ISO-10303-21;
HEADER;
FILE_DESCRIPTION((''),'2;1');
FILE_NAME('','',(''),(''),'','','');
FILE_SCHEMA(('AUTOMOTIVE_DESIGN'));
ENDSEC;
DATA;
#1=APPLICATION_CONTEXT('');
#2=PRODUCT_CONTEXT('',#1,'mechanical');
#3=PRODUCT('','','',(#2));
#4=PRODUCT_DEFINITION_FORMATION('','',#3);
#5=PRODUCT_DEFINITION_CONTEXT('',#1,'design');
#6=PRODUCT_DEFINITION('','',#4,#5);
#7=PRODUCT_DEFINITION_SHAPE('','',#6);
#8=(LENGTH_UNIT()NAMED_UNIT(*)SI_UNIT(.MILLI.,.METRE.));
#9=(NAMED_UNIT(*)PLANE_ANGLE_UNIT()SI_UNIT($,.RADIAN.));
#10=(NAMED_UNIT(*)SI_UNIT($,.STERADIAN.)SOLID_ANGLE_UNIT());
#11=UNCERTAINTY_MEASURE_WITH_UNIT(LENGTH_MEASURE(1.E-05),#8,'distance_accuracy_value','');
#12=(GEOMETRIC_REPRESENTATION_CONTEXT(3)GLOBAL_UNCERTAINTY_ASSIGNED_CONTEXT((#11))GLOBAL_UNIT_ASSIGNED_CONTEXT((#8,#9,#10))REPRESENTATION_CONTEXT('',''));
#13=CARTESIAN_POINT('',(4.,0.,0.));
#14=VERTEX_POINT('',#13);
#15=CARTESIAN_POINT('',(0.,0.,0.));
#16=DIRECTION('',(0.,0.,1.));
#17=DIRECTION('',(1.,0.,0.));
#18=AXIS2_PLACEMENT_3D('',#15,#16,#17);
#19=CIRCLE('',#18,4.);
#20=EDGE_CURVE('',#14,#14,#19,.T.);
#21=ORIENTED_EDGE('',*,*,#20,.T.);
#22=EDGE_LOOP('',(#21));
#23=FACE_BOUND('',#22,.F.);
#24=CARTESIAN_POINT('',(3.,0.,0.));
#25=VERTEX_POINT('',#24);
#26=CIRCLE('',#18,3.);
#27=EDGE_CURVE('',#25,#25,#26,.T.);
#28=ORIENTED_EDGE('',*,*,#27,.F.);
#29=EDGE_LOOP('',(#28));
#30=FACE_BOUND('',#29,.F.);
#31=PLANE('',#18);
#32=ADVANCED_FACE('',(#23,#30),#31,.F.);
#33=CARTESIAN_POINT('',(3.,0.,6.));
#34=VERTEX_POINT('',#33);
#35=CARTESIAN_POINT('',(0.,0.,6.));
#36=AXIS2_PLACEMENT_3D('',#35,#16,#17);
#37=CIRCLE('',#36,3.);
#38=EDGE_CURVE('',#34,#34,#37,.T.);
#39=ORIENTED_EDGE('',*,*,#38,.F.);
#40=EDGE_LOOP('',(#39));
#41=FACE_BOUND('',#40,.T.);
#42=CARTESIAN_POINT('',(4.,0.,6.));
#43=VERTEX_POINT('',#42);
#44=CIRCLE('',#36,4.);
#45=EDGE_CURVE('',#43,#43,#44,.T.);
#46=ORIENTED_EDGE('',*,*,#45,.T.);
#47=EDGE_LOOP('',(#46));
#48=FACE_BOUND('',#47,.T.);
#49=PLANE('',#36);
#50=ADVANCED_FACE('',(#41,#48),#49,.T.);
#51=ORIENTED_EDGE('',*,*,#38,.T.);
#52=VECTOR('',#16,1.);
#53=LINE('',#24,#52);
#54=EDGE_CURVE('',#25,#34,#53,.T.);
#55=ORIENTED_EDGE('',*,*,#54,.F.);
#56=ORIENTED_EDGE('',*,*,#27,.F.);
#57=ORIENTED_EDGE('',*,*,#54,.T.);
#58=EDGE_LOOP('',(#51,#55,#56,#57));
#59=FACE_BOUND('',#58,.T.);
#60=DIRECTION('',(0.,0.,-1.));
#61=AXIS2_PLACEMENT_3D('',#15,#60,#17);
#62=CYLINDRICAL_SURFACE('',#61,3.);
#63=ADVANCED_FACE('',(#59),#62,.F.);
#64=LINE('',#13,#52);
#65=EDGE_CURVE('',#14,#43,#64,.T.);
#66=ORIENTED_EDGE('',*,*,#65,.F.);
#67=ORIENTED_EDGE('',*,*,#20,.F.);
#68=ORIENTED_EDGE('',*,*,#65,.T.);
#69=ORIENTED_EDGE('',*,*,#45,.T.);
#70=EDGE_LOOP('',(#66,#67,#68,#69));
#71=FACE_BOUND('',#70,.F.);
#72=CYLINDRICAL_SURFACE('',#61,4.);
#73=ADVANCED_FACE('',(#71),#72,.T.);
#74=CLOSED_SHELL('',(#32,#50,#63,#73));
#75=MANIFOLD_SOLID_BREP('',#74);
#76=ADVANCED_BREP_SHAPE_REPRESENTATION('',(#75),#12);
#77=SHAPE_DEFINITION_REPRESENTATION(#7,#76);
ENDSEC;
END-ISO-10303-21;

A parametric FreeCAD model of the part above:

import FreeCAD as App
import Part
import Sketcher

V = App.Vector
Q = App.Units.Quantity

doc = App.newDocument("Part")
body = doc.addObject("PartDesign::Body", "Body")

sketch1 = body.newObject("Sketcher::SketchObject", "Sketch")
sketch1.AttachmentSupport = (doc.getObject("XY_Plane"), [""])
sketch1.MapMode = "FlatFace"
sketch1.addGeometry(Part.Circle(V(0, 0, 0), V(0, 0, 1), 4), False)
sketch1.addGeometry(Part.Circle(V(0, 0, 0), V(0, 0, 1), 3), False)
sketch1.addConstraint(Sketcher.Constraint("Coincident", 0, 3, -1, 1))
sketch1.addConstraint(Sketcher.Constraint("Coincident", 1, 3, -1, 1))
sketch1.addConstraint(Sketcher.Constraint("Diameter", 0, Q("8 mm")))
sketch1.addConstraint(Sketcher.Constraint("Diameter", 1, Q("6 mm")))
pad1 = body.newObject("PartDesign::Pad", "Pad")
pad1.Profile = sketch1
pad1.Length = 6

doc.recompute()
